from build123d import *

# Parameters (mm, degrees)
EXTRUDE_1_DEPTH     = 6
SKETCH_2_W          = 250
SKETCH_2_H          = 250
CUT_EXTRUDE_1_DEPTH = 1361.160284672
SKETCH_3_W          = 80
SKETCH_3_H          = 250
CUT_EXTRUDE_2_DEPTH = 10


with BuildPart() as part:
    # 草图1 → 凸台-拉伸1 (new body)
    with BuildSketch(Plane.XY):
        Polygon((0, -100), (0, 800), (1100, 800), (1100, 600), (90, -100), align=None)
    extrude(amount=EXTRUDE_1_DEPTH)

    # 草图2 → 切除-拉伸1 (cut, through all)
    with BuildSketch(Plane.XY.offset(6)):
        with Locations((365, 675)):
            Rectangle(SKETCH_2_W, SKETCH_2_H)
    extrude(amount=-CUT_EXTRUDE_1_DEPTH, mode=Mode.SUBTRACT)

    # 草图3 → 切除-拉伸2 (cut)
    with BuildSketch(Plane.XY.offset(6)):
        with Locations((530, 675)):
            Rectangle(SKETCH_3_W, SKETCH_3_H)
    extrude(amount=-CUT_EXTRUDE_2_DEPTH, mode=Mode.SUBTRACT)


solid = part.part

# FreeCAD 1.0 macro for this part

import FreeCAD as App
import Part
import Sketcher

V = App.Vector


def add_polygon(sketch, points):
    """Adds a closed chain of lines whose ends are joined by coincident constraints."""
    first, n = sketch.GeometryCount, len(points)
    for a, b in zip(points, points[1:] + points[:1]):
        sketch.addGeometry(Part.LineSegment(App.Vector(*a, 0), App.Vector(*b, 0)), False)
    for i in range(n):
        sketch.addConstraint(Sketcher.Constraint("Coincident", first + i, 2, first + (i + 1) % n, 1))

doc = App.newDocument("Part")
body = doc.addObject("PartDesign::Body", "Body")

sketch1 = body.newObject("Sketcher::SketchObject", "Sketch")
sketch1.AttachmentSupport = (doc.getObject("XY_Plane"), [""])
sketch1.MapMode = "FlatFace"
add_polygon(sketch1, [(0, 800), (0, -100), (90, -100), (1100, 600), (1100, 800)])
sketch1.addConstraint([
    Sketcher.Constraint("Vertical", 0),
    Sketcher.Constraint("Horizontal", 1),
    Sketcher.Constraint("Vertical", 3),
    Sketcher.Constraint("Horizontal", 4),
    Sketcher.Constraint("PointOnObject", 0, 2, -2),
    Sketcher.Constraint("DistanceX", 1, 1, 1, 2, 90.0),
    Sketcher.Constraint("DistanceX", 4, 2, 4, 1, 1100.0),
    Sketcher.Constraint("DistanceY", 0, 2, 0, 1, 900.0),
    Sketcher.Constraint("DistanceY", 3, 1, 3, 2, 200.0),
    Sketcher.Constraint("DistanceY", 0, 2, -1, 1, 100.0),
])
pad1 = body.newObject("PartDesign::Pad", "Pad")
pad1.Profile = sketch1
pad1.Length = 6

sketch2 = body.newObject("Sketcher::SketchObject", "Sketch001")
sketch2.AttachmentSupport = (doc.getObject("XY_Plane"), [""])
sketch2.MapMode = "FlatFace"
sketch2.AttachmentOffset = App.Placement(V(0, 0, 6), App.Rotation())
add_polygon(sketch2, [(240, 800), (240, 550), (490, 550), (490, 800)])
sketch2.addConstraint([
    Sketcher.Constraint("Vertical", 0),
    Sketcher.Constraint("Horizontal", 1),
    Sketcher.Constraint("Vertical", 2),
    Sketcher.Constraint("Horizontal", 3),
    Sketcher.Constraint("Equal", 3, 0),
    Sketcher.Constraint("DistanceX", 1, 1, 1, 2, 250.0),
    Sketcher.Constraint("DistanceX", -1, 1, 0, 2, 240.0),
    Sketcher.Constraint("DistanceY", -1, 1, 0, 2, 550.0),
])
pocket1 = body.newObject("PartDesign::Pocket", "Pocket")
pocket1.Profile = sketch2
pocket1.Type = "ThroughAll"

sketch3 = body.newObject("Sketcher::SketchObject", "Sketch002")
sketch3.AttachmentSupport = (doc.getObject("XY_Plane"), [""])
sketch3.MapMode = "FlatFace"
sketch3.AttachmentOffset = App.Placement(V(0, 0, 6), App.Rotation())
add_polygon(sketch3, [(490, 800), (490, 550), (570, 550), (570, 800)])
sketch3.addConstraint([
    Sketcher.Constraint("Vertical", 0),
    Sketcher.Constraint("Horizontal", 1),
    Sketcher.Constraint("Vertical", 2),
    Sketcher.Constraint("Horizontal", 3),
    Sketcher.Constraint("DistanceX", 1, 1, 1, 2, 80.0),
    Sketcher.Constraint("DistanceY", 0, 2, 0, 1, 250.0),
    Sketcher.Constraint("DistanceX", -1, 1, 0, 2, 490.0),
    Sketcher.Constraint("DistanceY", -1, 1, 0, 2, 550.0),
])
pocket2 = body.newObject("PartDesign::Pocket", "Pocket001")
pocket2.Profile = sketch3
pocket2.Length = 10

doc.recompute()
